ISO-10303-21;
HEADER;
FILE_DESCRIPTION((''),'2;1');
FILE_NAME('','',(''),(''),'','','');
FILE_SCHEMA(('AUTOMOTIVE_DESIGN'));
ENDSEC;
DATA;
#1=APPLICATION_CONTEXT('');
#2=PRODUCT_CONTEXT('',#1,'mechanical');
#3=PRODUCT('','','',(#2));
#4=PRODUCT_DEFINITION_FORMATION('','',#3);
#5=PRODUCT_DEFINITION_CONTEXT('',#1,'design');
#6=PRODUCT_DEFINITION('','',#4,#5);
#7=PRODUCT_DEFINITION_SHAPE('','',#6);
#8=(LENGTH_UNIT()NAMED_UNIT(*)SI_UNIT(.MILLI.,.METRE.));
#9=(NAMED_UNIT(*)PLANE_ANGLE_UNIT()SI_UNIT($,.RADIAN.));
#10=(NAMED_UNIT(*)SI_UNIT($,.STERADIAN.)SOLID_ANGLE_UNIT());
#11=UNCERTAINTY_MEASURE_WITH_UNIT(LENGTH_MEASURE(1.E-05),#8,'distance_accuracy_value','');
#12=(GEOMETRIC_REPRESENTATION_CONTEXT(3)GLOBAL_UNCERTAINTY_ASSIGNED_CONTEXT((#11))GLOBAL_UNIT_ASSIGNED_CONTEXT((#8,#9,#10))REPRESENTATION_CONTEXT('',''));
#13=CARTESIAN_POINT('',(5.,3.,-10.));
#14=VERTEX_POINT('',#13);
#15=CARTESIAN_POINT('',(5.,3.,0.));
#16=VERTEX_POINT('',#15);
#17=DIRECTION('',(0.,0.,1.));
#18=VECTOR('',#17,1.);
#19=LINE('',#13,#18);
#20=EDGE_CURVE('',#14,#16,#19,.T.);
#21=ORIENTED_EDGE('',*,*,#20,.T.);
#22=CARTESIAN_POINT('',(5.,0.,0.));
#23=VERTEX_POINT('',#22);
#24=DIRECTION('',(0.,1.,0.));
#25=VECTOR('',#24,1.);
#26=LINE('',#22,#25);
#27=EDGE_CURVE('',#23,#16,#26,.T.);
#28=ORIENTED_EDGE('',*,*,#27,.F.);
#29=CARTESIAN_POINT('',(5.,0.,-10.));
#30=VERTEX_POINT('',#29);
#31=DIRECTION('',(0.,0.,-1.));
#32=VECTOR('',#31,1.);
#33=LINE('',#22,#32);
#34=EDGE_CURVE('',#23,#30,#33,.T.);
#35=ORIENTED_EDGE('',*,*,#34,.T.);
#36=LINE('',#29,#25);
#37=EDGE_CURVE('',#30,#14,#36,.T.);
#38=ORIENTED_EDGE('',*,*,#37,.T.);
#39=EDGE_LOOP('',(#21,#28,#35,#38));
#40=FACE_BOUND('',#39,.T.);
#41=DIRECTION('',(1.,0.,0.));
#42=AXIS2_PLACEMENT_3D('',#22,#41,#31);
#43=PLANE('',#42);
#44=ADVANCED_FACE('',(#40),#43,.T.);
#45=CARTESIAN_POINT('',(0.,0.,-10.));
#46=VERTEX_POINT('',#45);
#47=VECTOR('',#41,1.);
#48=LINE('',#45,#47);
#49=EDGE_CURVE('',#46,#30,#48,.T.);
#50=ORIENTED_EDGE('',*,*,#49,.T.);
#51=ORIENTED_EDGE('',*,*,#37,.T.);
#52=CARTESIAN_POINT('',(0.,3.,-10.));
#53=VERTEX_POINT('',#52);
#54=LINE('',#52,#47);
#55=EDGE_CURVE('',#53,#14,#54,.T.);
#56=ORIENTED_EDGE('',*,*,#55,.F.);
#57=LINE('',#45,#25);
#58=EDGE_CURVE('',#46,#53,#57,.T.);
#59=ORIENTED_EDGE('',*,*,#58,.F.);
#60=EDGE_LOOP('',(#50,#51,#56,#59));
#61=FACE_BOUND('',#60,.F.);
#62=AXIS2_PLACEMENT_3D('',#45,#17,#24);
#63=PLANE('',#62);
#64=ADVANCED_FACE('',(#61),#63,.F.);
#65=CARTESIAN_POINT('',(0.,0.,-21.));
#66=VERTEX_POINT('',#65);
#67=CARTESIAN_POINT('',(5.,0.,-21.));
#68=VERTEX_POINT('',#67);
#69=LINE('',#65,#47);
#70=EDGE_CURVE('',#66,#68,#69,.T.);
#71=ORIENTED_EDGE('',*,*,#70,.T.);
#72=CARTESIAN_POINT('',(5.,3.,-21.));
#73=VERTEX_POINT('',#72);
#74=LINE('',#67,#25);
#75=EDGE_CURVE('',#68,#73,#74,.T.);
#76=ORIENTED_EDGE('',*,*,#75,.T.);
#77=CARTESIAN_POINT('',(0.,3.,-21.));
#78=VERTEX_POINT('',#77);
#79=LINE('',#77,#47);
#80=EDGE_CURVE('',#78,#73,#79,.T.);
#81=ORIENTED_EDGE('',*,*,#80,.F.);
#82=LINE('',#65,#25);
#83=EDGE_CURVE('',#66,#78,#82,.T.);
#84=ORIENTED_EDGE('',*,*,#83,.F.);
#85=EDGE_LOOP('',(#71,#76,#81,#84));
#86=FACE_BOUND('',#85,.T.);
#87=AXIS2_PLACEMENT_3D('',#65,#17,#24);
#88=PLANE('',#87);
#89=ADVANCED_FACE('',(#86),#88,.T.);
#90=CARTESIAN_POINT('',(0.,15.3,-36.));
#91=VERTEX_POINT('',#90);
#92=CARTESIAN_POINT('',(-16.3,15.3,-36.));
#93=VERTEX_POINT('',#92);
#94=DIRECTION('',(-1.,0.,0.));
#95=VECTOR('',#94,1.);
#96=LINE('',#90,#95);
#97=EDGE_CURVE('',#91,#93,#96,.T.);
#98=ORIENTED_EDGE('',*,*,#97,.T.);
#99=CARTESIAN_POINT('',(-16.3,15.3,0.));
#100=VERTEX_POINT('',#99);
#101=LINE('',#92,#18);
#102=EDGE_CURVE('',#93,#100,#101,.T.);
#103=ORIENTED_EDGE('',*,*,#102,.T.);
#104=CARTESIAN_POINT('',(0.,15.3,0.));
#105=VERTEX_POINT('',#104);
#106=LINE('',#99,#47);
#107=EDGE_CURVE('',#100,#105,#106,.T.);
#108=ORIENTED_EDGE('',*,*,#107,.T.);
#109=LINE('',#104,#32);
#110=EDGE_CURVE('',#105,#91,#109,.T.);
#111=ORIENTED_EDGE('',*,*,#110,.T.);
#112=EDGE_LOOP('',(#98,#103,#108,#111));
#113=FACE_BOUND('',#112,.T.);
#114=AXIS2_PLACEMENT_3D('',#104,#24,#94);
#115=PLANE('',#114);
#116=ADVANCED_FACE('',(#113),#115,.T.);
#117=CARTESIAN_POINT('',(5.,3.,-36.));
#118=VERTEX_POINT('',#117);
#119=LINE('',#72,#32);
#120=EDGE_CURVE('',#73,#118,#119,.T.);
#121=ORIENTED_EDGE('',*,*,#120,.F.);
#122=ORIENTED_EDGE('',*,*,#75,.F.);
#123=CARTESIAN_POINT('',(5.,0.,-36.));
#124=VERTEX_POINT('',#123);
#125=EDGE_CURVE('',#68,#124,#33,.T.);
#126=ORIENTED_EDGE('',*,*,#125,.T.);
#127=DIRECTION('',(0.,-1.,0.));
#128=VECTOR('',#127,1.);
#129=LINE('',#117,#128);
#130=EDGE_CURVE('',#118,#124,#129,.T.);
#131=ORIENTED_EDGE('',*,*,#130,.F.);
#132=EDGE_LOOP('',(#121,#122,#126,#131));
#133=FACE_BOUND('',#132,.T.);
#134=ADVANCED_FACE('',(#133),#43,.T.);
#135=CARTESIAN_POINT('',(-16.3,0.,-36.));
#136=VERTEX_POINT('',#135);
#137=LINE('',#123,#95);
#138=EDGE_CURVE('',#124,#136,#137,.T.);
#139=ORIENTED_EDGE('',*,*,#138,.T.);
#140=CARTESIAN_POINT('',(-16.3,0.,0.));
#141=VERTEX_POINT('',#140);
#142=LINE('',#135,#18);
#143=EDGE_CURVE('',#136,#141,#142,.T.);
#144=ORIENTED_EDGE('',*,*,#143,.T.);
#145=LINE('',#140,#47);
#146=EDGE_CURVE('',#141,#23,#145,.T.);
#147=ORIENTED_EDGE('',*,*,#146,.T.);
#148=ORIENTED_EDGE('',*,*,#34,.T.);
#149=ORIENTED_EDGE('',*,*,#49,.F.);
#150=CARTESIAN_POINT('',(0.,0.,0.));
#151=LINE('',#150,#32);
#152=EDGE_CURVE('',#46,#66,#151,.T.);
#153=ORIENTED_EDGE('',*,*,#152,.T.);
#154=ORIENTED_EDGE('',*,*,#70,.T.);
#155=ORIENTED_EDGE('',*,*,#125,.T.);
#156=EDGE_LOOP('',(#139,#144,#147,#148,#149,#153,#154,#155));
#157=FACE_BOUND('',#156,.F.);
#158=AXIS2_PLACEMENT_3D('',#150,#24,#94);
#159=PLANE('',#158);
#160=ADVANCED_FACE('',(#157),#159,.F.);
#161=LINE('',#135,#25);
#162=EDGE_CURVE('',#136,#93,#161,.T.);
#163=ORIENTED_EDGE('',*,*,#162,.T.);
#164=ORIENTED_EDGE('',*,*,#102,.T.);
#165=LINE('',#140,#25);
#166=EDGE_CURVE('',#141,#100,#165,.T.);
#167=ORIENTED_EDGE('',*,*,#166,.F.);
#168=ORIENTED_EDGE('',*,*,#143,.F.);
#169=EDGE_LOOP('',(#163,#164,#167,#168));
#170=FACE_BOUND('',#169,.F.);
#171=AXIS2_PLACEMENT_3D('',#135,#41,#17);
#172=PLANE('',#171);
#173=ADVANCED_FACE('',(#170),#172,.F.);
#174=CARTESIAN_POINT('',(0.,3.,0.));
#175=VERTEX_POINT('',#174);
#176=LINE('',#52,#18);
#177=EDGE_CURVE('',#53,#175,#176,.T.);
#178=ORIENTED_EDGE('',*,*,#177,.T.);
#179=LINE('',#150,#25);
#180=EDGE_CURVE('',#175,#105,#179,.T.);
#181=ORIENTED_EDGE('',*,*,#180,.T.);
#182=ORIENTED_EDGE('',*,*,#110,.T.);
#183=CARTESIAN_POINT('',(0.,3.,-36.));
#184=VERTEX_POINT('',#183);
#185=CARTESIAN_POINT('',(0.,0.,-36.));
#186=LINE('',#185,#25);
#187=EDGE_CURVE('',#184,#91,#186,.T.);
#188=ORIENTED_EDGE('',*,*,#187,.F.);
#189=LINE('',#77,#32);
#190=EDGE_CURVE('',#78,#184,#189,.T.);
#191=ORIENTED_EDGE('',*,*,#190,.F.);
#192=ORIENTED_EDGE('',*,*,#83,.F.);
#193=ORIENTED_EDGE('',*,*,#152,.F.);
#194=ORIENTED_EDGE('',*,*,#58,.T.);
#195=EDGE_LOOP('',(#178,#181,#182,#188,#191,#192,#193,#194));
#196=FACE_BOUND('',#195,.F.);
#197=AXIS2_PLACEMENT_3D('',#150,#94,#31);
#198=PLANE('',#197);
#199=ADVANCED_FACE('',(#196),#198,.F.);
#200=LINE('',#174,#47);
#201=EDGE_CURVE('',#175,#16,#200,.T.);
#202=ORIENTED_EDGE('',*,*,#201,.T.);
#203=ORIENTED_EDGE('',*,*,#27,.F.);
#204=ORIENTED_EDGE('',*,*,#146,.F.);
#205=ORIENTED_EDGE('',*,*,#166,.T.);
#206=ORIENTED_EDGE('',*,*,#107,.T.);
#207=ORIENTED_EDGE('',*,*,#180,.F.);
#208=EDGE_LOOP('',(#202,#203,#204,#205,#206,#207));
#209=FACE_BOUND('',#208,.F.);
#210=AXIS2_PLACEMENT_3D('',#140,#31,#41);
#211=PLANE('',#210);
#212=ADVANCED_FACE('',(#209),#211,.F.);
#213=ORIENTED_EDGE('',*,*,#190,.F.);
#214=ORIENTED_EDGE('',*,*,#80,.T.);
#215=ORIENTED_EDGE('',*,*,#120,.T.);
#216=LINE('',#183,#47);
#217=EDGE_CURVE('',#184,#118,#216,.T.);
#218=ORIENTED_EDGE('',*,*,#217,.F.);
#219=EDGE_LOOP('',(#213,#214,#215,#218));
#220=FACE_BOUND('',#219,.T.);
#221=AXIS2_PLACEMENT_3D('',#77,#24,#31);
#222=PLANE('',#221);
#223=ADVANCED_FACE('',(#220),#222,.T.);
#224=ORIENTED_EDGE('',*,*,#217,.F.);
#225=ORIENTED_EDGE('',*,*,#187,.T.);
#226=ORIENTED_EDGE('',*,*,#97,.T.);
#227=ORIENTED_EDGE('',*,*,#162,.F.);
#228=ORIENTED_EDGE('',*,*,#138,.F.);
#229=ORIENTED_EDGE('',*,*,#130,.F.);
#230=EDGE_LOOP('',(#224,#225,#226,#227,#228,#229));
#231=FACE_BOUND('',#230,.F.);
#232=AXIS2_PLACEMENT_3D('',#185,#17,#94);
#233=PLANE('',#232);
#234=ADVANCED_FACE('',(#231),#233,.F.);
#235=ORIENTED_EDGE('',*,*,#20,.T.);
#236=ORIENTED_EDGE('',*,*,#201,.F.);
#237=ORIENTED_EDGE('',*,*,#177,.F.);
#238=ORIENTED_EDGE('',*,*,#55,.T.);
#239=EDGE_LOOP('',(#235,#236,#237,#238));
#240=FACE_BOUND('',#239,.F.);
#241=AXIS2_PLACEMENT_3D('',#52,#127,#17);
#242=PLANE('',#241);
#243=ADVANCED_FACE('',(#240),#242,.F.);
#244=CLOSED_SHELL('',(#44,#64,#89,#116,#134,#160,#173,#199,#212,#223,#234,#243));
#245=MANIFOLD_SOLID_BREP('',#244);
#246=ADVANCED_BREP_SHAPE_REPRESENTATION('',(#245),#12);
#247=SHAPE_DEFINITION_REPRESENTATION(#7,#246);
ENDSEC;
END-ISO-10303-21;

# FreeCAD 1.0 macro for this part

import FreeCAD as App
import Part
import Sketcher

doc = App.newDocument("Part")
body = doc.addObject("PartDesign::Body", "Body")

sketch1 = body.newObject("Sketcher::SketchObject", "Sketch")
sketch1.AttachmentSupport = (doc.getObject("XZ_Plane"), [""])
sketch1.MapMode = "FlatFace"
sketch1.addGeometry([
    Part.LineSegment(App.Vector(-16.3, -36, 0), App.Vector(-16.3, 0, 0)),
    Part.LineSegment(App.Vector(-16.3, 0, 0), App.Vector(0, 0, 0)),
    Part.LineSegment(App.Vector(0, 0, 0), App.Vector(0, -36, 0)),
    Part.LineSegment(App.Vector(0, -36, 0), App.Vector(-16.3, -36, 0)),
], False)
sketch1.addConstraint([
    Sketcher.Constraint("Coincident", 0, 2, 1, 1),
    Sketcher.Constraint("Coincident", 1, 2, 2, 1),
    Sketcher.Constraint("Coincident", 2, 2, 3, 1),
    Sketcher.Constraint("Coincident", 3, 2, 0, 1),
    Sketcher.Constraint("Vertical", 0),
    Sketcher.Constraint("Horizontal", 1),
    Sketcher.Constraint("Vertical", 2),
    Sketcher.Constraint("Horizontal", 3),
    Sketcher.Constraint("Coincident", 1, 2, -1, 1),
    Sketcher.Constraint("DistanceY", 0, 1, 0, 2, 36.0),
    Sketcher.Constraint("DistanceX", 1, 1, 1, 2, 16.3),
])
pad1 = body.newObject("PartDesign::Pad", "Pad")
pad1.Profile = sketch1
pad1.Length = 15.3
pad1.Reversed = True

sketch2 = body.newObject("Sketcher::SketchObject", "Sketch001")
sketch2.AttachmentSupport = (doc.getObject("YZ_Plane"), [""])
sketch2.MapMode = "FlatFace"
sketch2.addGeometry([
    Part.LineSegment(App.Vector(3, -21, 0), App.Vector(0, -21, 0)),
    Part.LineSegment(App.Vector(0, -21, 0), App.Vector(0, -36, 0)),
    Part.LineSegment(App.Vector(0, -36, 0), App.Vector(3, -36, 0)),
    Part.LineSegment(App.Vector(3, -36, 0), App.Vector(3, -21, 0)),
    Part.LineSegment(App.Vector(3, 0, 0), App.Vector(0, 0, 0)),
    Part.LineSegment(App.Vector(0, 0, 0), App.Vector(0, -10, 0)),
    Part.LineSegment(App.Vector(0, -10, 0), App.Vector(3, -10, 0)),
    Part.LineSegment(App.Vector(3, -10, 0), App.Vector(3, 0, 0)),
], False)
sketch2.addConstraint([
    Sketcher.Constraint("Coincident", 0, 2, 1, 1),
    Sketcher.Constraint("Coincident", 1, 2, 2, 1),
    Sketcher.Constraint("Coincident", 2, 2, 3, 1),
    Sketcher.Constraint("Coincident", 3, 2, 0, 1),
    Sketcher.Constraint("Coincident", 4, 2, 5, 1),
    Sketcher.Constraint("Coincident", 5, 2, 6, 1),
    Sketcher.Constraint("Coincident", 6, 2, 7, 1),
    Sketcher.Constraint("Coincident", 7, 2, 4, 1),
    Sketcher.Constraint("Horizontal", 0),
    Sketcher.Constraint("Vertical", 1),
    Sketcher.Constraint("Horizontal", 2),
    Sketcher.Constraint("Vertical", 3),
    Sketcher.Constraint("Horizontal", 4),
    Sketcher.Constraint("Vertical", 5),
    Sketcher.Constraint("Horizontal", 6),
    Sketcher.Constraint("Vertical", 7),
    Sketcher.Constraint("Coincident", 4, 2, -1, 1),
    Sketcher.Constraint("PointOnObject", 0, 2, -2),
    Sketcher.Constraint("Vertical", 3, 2, 6, 2),
    Sketcher.Constraint("DistanceX", 0, 2, 0, 1, 3.0),
    Sketcher.Constraint("DistanceY", 1, 2, 1, 1, 15.0),
    Sketcher.Constraint("DistanceY", 5, 2, 5, 1, 10.0),
    Sketcher.Constraint("DistanceY", 0, 2, -1, 1, 21.0),
])
pad2 = body.newObject("PartDesign::Pad", "Pad001")
pad2.Profile = sketch2
pad2.Length = 5

doc.recompute()
